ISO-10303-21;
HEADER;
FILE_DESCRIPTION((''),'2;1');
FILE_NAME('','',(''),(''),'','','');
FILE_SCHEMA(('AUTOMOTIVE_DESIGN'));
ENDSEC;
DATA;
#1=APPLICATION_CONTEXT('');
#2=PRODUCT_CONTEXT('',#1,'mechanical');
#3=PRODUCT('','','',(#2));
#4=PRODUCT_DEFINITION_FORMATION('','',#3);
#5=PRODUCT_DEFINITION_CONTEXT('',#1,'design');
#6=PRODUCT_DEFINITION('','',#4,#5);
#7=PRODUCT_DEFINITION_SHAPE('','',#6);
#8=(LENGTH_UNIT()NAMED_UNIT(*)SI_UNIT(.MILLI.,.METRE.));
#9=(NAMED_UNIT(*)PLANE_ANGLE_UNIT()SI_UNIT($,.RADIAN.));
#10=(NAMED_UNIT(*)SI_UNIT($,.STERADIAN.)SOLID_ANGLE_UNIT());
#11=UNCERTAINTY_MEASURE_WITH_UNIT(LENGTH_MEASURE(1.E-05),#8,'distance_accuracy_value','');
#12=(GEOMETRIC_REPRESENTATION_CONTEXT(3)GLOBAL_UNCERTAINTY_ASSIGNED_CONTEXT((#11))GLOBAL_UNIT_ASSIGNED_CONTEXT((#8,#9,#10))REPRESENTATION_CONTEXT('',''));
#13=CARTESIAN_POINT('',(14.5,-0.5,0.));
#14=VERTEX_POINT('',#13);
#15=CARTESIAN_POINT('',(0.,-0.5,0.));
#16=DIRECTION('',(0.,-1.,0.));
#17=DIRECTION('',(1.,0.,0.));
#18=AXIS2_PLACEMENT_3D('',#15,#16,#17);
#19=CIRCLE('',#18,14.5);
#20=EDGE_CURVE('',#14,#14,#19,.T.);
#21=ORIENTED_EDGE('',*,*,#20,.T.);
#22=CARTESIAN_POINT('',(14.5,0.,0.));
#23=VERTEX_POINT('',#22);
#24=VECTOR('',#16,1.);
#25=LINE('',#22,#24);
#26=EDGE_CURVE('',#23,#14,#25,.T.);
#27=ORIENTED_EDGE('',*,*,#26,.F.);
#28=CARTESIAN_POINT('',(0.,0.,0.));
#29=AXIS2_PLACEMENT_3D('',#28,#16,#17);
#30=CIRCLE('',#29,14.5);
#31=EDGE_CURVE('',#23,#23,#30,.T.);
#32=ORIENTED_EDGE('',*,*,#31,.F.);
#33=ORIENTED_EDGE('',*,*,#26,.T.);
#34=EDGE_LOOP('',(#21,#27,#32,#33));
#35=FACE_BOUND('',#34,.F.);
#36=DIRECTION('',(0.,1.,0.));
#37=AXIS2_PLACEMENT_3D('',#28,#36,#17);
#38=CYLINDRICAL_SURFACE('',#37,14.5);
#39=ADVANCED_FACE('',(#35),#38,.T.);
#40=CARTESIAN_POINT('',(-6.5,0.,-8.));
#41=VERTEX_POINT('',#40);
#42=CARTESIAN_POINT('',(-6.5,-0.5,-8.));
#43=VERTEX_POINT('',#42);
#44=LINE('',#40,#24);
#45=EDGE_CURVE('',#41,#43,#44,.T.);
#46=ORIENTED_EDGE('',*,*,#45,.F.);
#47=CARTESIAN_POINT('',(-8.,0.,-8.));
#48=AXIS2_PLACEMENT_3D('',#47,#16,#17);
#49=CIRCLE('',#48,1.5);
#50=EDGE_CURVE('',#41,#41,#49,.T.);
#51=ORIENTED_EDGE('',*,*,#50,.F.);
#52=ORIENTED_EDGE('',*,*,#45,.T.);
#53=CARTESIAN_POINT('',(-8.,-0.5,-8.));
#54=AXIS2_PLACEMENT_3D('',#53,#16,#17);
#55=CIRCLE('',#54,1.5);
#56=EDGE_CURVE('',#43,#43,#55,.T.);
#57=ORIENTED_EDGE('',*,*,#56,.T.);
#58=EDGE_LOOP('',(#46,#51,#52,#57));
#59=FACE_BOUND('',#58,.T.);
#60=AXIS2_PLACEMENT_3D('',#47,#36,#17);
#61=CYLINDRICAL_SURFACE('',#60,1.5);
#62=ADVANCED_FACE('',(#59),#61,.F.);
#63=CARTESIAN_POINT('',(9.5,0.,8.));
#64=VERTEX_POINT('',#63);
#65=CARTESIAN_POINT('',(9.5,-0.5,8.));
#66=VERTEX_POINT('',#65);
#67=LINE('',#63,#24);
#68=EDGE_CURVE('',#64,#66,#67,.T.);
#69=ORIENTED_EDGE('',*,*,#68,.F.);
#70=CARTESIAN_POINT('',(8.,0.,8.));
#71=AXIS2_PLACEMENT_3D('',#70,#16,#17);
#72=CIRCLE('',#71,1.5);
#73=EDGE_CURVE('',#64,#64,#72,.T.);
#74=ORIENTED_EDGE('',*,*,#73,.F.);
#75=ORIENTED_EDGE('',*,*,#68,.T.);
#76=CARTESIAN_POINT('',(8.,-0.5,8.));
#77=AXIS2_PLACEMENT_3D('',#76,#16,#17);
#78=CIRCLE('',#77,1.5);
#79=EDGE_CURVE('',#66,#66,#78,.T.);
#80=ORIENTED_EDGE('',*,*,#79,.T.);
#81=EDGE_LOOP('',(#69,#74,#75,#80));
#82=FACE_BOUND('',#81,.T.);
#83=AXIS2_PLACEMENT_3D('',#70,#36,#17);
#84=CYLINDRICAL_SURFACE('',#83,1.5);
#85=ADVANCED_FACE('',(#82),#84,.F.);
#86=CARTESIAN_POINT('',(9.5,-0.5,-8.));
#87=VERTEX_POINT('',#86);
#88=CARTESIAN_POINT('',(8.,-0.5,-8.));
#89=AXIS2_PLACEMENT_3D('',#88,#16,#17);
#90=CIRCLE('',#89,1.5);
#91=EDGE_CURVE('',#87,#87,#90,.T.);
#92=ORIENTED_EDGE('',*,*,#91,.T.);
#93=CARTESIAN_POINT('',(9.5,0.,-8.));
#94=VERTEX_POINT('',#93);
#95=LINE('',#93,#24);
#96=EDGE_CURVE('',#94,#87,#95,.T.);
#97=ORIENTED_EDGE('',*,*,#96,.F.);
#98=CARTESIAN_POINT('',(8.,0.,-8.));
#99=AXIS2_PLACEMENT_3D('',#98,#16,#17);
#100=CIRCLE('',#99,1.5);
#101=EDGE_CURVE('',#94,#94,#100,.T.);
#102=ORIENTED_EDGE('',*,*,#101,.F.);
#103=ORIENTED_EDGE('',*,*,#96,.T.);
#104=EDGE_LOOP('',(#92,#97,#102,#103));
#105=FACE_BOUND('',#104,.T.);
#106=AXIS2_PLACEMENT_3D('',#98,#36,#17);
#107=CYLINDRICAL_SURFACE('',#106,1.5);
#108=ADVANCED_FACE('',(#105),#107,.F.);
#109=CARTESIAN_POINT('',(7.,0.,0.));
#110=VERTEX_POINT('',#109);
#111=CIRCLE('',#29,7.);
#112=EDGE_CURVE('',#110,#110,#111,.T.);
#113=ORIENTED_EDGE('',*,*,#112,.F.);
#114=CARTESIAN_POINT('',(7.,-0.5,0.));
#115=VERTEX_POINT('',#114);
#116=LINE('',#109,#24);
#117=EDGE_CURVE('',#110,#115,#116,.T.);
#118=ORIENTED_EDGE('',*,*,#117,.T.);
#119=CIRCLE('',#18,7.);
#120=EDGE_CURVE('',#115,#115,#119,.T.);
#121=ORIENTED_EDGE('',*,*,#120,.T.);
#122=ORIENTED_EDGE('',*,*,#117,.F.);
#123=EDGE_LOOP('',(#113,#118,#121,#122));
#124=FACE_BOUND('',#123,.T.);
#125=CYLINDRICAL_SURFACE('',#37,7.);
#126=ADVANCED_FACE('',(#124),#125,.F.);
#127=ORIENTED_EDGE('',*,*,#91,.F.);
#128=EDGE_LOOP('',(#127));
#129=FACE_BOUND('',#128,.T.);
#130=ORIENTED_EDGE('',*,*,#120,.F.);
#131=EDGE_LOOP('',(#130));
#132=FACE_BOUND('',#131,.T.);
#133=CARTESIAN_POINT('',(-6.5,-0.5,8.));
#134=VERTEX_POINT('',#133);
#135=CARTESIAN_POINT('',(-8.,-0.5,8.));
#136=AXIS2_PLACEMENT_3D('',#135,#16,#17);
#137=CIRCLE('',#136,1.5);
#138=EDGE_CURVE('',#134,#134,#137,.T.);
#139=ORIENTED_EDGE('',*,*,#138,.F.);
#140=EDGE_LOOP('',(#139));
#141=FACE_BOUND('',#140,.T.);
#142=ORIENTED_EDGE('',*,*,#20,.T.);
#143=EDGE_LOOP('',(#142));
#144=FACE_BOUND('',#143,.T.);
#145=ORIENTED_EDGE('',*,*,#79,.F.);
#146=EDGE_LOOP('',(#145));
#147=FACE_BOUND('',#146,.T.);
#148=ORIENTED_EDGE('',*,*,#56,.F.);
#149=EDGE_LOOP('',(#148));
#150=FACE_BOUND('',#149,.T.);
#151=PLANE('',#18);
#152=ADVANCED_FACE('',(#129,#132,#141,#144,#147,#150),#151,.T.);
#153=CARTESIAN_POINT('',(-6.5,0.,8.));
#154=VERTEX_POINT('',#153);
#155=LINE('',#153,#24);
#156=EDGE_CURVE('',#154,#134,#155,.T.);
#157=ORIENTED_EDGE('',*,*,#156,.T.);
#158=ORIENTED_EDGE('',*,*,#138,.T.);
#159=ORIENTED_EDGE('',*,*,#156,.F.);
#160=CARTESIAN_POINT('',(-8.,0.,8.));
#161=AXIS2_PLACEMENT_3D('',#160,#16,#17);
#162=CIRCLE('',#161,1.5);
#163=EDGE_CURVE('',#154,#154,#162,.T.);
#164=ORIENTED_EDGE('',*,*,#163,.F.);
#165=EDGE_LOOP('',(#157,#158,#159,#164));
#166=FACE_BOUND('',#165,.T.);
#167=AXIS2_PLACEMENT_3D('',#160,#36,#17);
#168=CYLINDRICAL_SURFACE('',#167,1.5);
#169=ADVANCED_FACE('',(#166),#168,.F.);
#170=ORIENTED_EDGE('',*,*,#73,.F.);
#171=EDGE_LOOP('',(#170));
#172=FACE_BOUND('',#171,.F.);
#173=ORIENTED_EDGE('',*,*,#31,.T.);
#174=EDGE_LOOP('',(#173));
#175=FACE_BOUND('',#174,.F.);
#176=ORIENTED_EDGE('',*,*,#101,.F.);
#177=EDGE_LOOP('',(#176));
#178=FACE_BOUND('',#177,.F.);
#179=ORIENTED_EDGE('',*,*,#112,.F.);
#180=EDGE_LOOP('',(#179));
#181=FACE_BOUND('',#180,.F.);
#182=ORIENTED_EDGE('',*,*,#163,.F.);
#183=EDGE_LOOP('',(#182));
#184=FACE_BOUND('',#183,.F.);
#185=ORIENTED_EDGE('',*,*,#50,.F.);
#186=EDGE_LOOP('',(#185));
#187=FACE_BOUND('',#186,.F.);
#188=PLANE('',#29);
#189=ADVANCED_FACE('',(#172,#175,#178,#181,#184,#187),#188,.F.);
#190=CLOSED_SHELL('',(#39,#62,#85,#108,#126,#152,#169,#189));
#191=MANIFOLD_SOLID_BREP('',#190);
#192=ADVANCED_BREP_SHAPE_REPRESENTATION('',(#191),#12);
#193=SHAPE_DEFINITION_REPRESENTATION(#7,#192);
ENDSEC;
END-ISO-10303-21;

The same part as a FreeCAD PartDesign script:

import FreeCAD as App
import Part
import Sketcher

doc = App.newDocument("Part")
body = doc.addObject("PartDesign::Body", "Body")

# Sketch on XZ plane
sketch1 = body.newObject("Sketcher::SketchObject", "Sketch")
sketch1.AttachmentSupport = (doc.getObject("XZ_Plane"), [""])
sketch1.MapMode = "FlatFace"
sketch1.addGeometry([
    Part.Circle(App.Vector(0, 0, 0), App.Vector(0, 0, 1), 14.5),  # 0
    Part.Circle(App.Vector(-8, -8, 0), App.Vector(0, 0, 1), 1.5),  # 1
    Part.Circle(App.Vector(8, -8, 0), App.Vector(0, 0, 1), 1.5),  # 2
    Part.Circle(App.Vector(-8, 8, 0), App.Vector(0, 0, 1), 1.5),  # 3
    Part.Circle(App.Vector(0, 0, 0), App.Vector(0, 0, 1), 7),  # 4
    Part.Circle(App.Vector(8, 8, 0), App.Vector(0, 0, 1), 1.5),  # 5
], False)
sketch1.addConstraint([
    Sketcher.Constraint("Coincident", 0, 3, -1, 1),
    Sketcher.Constraint("Coincident", 4, 3, -1, 1),
    Sketcher.Constraint("Equal", 1, 2),
    Sketcher.Constraint("Equal", 2, 3),
    Sketcher.Constraint("Equal", 3, 5),
    Sketcher.Constraint("Symmetric", 2, 3, 3, 3, -1, 1),
    Sketcher.Constraint("Symmetric", 1, 3, 5, 3, -1, 1),
    Sketcher.Constraint("Symmetric", 1, 3, 2, 3, -2),
    Sketcher.Constraint("Diameter", 0, 29.0),
    Sketcher.Constraint("Diameter", 1, 3.0),
    Sketcher.Constraint("Diameter", 4, 14.0),
    Sketcher.Constraint("DistanceX", 1, 3, -1, 1, 8.0),
    Sketcher.Constraint("DistanceY", 1, 3, -1, 1, 8.0),
])
pad1 = body.newObject("PartDesign::Pad", "Pad")
pad1.Profile = sketch1
pad1.Length = 0.5

doc.recompute()
